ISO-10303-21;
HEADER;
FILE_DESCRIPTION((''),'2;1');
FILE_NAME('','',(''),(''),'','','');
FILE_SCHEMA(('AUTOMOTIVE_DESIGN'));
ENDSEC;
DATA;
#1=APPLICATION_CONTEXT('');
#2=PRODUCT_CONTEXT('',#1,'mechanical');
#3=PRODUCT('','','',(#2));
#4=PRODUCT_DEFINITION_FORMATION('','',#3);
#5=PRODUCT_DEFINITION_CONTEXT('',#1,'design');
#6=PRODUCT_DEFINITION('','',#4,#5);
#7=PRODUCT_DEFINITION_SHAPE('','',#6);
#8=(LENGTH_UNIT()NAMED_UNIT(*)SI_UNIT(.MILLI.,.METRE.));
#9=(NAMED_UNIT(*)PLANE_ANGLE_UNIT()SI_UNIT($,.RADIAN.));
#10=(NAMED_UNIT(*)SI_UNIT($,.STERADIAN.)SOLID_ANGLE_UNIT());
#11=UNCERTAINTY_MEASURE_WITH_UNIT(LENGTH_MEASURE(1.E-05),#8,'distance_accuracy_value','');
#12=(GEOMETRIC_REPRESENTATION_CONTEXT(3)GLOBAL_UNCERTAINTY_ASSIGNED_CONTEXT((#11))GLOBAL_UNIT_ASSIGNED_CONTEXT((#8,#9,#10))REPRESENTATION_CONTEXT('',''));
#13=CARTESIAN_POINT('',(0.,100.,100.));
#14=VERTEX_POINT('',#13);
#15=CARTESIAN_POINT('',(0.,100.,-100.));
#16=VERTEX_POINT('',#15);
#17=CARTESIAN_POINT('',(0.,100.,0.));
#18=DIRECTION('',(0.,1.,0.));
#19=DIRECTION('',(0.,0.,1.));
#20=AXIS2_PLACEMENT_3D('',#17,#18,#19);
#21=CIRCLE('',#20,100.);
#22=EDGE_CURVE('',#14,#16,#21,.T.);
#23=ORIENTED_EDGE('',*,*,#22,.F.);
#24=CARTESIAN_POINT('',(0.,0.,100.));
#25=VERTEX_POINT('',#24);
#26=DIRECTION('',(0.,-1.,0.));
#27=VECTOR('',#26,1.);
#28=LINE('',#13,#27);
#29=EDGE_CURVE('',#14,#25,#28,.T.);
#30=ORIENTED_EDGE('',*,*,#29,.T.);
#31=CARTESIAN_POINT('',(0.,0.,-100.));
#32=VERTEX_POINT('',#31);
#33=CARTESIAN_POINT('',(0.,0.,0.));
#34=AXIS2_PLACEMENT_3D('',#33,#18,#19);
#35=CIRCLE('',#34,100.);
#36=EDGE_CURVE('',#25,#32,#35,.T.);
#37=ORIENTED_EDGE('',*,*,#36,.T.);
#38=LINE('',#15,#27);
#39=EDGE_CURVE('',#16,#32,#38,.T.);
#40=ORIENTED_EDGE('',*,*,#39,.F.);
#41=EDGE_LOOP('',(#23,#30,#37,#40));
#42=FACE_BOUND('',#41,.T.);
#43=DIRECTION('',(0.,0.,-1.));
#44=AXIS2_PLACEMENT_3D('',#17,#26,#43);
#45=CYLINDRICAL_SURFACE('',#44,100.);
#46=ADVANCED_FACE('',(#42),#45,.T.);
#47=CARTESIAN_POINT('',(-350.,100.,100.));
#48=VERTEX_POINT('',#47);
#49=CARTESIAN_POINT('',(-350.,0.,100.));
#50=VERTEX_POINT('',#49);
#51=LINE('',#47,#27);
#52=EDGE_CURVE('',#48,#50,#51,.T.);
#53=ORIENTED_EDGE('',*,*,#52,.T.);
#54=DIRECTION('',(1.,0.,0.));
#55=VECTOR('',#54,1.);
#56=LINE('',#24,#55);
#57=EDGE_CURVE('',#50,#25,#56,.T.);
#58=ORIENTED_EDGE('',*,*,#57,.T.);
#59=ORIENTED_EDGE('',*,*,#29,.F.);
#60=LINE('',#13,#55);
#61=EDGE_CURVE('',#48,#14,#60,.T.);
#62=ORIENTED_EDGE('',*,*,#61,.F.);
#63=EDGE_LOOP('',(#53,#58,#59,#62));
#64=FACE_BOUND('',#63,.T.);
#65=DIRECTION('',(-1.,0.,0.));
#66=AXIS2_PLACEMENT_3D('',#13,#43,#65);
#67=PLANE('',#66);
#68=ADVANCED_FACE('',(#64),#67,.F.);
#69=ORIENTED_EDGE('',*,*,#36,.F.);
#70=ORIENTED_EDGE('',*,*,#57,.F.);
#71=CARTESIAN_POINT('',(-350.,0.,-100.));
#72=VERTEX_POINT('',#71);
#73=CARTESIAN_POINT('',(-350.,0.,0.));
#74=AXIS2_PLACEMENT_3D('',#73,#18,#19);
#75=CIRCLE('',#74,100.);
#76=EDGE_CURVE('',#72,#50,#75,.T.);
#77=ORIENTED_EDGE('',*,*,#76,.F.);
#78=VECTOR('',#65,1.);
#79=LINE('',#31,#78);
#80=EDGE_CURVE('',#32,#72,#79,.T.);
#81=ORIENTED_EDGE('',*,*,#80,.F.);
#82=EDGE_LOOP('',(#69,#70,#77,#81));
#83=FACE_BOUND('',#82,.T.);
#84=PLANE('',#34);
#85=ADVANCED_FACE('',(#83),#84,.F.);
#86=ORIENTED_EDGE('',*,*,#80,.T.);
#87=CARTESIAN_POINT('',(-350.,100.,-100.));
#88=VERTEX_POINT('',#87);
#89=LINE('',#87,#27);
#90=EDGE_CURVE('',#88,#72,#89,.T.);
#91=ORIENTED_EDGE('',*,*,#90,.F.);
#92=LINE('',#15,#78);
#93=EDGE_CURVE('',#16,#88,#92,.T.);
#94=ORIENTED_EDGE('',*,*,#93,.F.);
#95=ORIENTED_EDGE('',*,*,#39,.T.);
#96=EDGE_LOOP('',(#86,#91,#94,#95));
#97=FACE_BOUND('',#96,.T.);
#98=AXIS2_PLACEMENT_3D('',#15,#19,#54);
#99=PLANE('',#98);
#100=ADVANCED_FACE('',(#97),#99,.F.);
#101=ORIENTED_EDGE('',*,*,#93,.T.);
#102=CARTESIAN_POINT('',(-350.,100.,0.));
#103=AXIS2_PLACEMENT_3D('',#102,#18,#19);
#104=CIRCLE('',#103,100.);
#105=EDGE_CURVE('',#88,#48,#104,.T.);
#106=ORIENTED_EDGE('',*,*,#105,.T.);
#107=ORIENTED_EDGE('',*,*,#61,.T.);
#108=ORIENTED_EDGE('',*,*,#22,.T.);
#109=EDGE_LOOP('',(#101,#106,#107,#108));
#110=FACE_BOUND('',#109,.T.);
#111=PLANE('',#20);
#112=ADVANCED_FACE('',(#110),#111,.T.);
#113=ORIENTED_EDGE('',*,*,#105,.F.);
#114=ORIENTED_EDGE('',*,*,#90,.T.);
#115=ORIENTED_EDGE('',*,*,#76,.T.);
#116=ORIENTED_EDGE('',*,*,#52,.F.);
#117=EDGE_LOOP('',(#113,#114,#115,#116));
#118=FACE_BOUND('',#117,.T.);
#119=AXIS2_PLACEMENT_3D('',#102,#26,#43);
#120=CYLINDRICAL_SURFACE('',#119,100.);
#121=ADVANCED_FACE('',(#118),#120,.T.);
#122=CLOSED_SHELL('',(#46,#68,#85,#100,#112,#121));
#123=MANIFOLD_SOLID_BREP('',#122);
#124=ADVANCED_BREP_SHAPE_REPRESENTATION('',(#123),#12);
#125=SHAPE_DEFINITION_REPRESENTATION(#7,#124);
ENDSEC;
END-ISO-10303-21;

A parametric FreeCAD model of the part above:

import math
import FreeCAD as App
import Part
import Sketcher
from FreeCAD import Vector

doc = App.newDocument("Part")
body = doc.addObject("PartDesign::Body", "Body")

# Sketch on XZ plane
sketch1 = body.newObject("Sketcher::SketchObject", "Sketch")
sketch1.AttachmentSupport = (doc.getObject("XZ_Plane"), [""])
sketch1.MapMode = "FlatFace"
sketch1.addGeometry([
    Part.LineSegment(Vector(-350, 100, 0), Vector(0, 100, 0)),
    Part.ArcOfCircle(Part.Circle(Vector(0, 0, 0), Vector(0, 0, 1), 100), math.radians(-90), math.radians(90)),
    Part.LineSegment(Vector(0, -100, 0), Vector(-350, -100, 0)),
    Part.ArcOfCircle(Part.Circle(Vector(-350, 0, 0), Vector(0, 0, 1), 100), math.radians(90), math.radians(270)),
], False)
sketch1.addConstraint([
    Sketcher.Constraint("Tangent", 0, 2, 1, 2),
    Sketcher.Constraint("Tangent", 1, 1, 2, 1),
    Sketcher.Constraint("Tangent", 2, 2, 3, 2),
    Sketcher.Constraint("Tangent", 3, 1, 0, 1),
    Sketcher.Constraint("Horizontal", 0),
    Sketcher.Constraint("Horizontal", 2),
    Sketcher.Constraint("Coincident", 1, 3, -1, 1),
    Sketcher.Constraint("Radius", 1, 100.0),
    Sketcher.Constraint("DistanceX", 0, 1, 0, 2, 350.0),
])
pad1 = body.newObject("PartDesign::Pad", "Pad")
pad1.Profile = sketch1
pad1.Length = 100
pad1.Reversed = True

doc.recompute()
